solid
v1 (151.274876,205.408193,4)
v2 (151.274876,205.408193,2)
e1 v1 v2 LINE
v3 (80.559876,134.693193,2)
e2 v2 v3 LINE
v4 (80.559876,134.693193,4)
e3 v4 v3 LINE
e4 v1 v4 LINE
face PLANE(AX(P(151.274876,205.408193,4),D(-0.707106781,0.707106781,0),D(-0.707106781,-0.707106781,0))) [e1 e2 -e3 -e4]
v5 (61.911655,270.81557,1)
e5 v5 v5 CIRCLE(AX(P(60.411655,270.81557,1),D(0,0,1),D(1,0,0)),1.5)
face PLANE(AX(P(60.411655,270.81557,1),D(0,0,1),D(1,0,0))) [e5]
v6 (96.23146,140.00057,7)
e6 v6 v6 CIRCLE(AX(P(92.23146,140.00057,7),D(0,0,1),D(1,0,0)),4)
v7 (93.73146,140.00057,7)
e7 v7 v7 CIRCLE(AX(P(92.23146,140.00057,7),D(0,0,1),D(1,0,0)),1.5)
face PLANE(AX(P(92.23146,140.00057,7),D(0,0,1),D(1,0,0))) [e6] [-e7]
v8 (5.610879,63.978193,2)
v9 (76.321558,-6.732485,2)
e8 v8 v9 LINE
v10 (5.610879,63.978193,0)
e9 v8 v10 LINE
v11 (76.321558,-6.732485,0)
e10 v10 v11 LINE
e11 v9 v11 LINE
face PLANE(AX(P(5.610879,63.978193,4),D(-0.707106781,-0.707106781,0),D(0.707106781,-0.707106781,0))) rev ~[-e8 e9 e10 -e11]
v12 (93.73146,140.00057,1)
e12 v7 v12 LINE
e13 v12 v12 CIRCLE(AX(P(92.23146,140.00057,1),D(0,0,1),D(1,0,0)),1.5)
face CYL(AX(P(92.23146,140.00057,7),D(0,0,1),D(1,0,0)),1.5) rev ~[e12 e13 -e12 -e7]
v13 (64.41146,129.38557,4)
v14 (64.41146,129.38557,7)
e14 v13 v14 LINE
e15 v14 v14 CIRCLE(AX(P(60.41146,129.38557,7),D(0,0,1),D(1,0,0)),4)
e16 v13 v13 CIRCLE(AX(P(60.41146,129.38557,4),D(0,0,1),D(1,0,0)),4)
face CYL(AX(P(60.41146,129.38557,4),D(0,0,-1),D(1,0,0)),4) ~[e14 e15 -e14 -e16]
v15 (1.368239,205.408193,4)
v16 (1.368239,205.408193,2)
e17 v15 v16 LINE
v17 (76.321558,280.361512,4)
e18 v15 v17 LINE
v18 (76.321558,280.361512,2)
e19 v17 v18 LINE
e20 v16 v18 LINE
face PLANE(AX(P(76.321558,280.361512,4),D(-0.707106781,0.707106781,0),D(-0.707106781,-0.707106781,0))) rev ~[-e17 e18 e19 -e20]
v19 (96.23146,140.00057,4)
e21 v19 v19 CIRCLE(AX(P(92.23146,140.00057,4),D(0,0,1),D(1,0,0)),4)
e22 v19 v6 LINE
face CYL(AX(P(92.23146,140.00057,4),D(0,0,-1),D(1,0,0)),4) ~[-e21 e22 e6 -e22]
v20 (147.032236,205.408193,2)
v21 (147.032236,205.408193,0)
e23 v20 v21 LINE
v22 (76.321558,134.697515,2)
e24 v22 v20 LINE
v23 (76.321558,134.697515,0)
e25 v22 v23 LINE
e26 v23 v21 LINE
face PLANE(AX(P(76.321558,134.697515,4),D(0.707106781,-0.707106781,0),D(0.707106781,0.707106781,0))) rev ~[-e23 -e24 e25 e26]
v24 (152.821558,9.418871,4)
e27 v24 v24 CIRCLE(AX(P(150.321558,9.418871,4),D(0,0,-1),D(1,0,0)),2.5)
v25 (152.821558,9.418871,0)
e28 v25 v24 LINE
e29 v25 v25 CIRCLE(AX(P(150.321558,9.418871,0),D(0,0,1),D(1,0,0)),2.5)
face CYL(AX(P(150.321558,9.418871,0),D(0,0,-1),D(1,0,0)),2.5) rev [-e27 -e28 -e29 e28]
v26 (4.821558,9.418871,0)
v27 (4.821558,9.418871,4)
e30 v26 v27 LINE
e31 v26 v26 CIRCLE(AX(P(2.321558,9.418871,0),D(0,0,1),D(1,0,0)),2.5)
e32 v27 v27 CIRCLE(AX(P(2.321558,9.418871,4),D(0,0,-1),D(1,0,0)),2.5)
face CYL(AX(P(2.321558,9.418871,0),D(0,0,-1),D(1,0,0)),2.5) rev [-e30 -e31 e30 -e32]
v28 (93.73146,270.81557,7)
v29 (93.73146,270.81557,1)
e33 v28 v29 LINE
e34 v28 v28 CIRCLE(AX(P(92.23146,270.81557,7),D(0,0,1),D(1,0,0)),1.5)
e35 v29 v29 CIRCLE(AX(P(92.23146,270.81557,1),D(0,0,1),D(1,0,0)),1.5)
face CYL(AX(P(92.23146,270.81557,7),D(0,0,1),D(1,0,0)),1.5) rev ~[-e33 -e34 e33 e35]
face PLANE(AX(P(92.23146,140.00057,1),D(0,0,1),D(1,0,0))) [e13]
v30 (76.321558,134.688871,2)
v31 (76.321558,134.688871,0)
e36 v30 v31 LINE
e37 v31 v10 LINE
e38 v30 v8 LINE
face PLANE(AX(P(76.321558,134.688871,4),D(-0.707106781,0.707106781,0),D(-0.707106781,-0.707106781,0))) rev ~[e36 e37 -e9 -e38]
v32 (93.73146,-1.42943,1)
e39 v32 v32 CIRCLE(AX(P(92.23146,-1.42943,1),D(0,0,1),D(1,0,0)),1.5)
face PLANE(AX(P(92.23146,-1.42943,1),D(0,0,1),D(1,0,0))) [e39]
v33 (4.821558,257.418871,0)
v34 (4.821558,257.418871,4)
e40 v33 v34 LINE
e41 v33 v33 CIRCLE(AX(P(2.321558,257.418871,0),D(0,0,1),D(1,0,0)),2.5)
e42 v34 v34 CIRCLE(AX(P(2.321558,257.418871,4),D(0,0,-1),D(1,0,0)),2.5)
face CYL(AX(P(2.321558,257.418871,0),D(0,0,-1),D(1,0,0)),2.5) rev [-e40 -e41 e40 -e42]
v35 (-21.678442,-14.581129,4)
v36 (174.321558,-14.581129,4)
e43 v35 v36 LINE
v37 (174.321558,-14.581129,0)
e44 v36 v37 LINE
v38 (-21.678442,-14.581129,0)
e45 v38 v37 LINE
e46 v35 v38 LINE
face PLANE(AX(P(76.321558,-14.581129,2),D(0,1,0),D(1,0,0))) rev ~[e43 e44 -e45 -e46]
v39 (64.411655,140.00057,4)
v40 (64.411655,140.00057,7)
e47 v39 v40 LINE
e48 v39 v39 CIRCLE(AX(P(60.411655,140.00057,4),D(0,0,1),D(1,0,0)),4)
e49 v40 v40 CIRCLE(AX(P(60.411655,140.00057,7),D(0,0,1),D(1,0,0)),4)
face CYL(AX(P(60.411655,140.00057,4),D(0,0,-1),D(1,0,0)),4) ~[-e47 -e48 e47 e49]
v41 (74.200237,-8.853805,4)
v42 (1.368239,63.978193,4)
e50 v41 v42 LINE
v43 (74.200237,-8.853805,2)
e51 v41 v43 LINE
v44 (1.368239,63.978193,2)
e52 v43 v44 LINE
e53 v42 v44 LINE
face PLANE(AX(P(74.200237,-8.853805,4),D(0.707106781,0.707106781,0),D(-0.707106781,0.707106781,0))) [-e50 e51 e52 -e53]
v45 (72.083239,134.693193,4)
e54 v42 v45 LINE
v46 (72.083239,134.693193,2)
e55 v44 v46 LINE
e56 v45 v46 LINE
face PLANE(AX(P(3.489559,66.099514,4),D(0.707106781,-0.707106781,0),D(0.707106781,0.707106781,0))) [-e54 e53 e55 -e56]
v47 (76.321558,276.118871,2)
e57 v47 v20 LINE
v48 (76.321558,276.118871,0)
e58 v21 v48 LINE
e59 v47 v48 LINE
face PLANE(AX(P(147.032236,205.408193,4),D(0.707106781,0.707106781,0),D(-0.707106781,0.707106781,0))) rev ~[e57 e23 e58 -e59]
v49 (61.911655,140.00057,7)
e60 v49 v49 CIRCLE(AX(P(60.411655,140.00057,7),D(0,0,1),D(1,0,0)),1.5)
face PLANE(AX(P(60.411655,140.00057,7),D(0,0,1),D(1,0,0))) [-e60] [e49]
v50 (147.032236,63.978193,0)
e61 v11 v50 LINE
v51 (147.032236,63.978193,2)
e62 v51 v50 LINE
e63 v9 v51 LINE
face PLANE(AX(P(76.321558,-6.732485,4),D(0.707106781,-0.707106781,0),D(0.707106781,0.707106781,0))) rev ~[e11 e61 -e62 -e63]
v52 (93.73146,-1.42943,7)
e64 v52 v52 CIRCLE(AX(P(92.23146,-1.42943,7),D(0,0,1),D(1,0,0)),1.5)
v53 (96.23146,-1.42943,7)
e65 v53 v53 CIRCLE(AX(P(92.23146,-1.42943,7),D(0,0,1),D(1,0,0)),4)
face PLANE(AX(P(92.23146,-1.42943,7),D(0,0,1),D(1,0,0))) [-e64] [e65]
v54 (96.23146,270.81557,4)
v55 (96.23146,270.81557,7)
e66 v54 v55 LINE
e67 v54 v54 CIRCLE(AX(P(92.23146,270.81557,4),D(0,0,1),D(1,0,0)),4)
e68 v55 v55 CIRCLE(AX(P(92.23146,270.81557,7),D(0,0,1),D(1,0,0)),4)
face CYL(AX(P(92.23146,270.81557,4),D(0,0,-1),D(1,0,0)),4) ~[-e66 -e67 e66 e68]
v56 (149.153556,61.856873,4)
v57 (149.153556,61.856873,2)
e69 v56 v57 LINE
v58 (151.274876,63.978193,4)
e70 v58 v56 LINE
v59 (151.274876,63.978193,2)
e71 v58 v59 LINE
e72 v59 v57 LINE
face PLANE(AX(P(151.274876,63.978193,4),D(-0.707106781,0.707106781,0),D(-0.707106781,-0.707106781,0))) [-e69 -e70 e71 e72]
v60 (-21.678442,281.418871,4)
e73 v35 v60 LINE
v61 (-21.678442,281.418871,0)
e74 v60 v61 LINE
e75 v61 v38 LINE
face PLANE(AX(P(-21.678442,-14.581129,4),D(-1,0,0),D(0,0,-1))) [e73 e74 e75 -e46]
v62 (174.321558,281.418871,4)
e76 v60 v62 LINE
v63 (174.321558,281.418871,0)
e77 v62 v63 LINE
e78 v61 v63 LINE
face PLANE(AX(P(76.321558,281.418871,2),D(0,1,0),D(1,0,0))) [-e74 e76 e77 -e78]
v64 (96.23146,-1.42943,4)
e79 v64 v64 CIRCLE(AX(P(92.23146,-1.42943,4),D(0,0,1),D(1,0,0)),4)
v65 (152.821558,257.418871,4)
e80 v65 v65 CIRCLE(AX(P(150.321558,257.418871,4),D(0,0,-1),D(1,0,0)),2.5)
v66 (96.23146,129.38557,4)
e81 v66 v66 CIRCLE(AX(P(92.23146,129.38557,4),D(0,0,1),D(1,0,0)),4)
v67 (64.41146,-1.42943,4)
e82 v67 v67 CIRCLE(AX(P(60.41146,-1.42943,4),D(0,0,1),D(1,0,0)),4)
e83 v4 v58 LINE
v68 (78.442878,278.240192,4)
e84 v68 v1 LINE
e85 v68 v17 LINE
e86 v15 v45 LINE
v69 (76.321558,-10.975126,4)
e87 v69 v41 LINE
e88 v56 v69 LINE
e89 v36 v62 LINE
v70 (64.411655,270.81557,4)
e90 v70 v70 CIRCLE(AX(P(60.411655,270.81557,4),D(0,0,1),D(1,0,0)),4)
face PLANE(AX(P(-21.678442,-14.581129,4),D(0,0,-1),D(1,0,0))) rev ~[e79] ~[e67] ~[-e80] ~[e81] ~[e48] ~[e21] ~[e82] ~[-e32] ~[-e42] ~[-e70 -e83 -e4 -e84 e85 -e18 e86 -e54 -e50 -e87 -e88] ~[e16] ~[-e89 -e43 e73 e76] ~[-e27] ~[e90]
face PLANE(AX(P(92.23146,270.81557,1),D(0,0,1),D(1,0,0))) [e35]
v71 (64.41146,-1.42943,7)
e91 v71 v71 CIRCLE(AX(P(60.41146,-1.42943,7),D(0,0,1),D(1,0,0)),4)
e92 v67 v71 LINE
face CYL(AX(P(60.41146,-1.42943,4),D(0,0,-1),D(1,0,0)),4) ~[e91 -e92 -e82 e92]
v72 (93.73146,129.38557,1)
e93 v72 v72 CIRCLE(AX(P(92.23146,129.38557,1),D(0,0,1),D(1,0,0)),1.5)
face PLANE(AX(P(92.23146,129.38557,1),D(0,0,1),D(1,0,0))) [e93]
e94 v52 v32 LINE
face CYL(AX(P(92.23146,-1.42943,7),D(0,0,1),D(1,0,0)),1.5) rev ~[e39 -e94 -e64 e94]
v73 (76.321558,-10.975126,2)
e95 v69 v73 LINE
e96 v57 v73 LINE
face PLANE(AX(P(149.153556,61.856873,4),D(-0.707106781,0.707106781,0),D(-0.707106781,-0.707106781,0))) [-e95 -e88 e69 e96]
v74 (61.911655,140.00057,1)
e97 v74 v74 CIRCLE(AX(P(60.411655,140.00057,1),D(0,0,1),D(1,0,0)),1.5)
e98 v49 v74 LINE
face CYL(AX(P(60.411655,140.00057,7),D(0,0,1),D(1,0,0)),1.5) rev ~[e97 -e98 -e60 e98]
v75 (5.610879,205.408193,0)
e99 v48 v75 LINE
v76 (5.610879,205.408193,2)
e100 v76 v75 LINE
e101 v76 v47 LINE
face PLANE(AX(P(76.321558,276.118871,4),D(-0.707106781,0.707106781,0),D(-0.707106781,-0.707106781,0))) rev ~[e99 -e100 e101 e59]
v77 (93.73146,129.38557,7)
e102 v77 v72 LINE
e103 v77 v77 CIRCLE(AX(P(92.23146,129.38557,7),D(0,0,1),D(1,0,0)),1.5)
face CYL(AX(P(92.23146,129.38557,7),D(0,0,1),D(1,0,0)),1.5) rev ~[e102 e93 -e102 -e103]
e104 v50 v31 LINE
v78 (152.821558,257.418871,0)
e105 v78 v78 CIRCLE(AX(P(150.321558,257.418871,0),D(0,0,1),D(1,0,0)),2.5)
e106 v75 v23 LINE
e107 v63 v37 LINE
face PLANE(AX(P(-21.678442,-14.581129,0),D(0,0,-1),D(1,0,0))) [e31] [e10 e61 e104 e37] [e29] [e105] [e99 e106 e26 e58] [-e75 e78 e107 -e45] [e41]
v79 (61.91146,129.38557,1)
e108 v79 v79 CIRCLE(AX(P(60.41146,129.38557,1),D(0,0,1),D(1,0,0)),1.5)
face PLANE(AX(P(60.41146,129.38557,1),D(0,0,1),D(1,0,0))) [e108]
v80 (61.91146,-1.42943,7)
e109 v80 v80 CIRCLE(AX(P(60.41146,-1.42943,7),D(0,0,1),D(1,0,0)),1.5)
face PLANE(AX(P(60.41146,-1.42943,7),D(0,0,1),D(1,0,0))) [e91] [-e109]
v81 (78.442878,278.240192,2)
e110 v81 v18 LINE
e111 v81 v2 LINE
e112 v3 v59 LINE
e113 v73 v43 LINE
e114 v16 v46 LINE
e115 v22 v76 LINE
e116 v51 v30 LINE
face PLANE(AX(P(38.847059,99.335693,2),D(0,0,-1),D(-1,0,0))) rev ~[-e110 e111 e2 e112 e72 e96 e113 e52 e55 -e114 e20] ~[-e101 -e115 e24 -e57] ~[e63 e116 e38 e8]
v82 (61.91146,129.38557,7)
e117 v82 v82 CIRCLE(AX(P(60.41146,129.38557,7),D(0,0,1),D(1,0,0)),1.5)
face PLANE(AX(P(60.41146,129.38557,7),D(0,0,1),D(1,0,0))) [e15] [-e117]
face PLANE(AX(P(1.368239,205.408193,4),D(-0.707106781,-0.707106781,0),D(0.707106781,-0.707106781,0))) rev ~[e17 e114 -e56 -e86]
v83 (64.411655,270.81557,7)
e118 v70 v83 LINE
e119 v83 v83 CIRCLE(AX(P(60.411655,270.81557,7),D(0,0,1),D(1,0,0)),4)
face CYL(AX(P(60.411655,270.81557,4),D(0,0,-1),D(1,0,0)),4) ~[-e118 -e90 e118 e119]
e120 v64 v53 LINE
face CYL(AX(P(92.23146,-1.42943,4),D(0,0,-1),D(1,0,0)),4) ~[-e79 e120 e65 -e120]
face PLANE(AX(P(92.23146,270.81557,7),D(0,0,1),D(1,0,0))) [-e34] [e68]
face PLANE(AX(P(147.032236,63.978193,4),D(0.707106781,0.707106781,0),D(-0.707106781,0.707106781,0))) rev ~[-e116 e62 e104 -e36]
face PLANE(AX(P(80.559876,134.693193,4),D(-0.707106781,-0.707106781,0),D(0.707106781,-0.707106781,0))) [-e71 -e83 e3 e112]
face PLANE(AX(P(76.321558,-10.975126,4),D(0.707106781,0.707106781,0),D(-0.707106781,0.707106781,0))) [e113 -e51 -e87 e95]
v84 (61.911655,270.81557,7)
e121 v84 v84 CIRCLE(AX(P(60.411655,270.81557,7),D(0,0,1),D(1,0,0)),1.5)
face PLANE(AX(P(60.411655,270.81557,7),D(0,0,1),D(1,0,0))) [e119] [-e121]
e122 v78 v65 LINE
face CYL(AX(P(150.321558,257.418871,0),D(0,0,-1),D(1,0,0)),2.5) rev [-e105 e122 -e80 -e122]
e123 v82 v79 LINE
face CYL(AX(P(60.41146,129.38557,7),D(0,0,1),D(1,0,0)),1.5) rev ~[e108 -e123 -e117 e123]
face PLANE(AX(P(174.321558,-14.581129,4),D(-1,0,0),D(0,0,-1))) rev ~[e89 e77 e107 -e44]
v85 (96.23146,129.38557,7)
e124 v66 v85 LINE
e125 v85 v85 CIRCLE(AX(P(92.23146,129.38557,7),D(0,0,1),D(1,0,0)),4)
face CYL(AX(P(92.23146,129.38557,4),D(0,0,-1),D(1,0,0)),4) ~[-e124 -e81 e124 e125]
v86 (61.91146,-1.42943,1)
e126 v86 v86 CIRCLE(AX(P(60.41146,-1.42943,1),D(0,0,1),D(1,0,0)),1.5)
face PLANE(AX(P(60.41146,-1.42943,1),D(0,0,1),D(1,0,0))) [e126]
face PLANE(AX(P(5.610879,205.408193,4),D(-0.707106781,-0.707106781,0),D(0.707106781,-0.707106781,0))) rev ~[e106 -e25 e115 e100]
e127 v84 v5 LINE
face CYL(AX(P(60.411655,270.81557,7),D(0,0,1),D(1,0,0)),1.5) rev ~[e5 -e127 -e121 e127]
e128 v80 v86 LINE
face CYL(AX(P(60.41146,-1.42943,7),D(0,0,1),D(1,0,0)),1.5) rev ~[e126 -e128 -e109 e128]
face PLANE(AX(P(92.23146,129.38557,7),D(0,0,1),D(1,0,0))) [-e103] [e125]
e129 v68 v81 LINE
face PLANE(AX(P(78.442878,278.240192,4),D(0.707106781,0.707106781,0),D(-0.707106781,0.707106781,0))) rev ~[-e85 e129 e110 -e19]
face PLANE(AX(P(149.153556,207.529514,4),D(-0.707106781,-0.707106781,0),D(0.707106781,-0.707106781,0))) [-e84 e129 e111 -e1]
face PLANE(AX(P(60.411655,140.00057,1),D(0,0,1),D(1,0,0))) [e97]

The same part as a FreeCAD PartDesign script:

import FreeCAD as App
import Part
import Sketcher

V = App.Vector
Q = App.Units.Quantity

doc = App.newDocument("Part")
body = doc.addObject("PartDesign::Body", "Body")

# Sketch on XY plane
sketch1 = body.newObject("Sketcher::SketchObject", "Sketch")
sketch1.AttachmentSupport = (doc.getObject("XY_Plane"), [""])
sketch1.MapMode = "FlatFace"
sketch1.addGeometry(Part.LineSegment(V(-20.678442, 280.418871, 0), V(-20.678442, -13.581129, 0)), False)
sketch1.addGeometry(Part.LineSegment(V(-20.678442, -13.581129, 0), V(173.321558, -13.581129, 0)), False)
sketch1.addGeometry(Part.LineSegment(V(173.321558, -13.581129, 0), V(173.321558, 280.418871, 0)), False)
sketch1.addGeometry(Part.LineSegment(V(173.321558, 280.418871, 0), V(-20.678442, 280.418871, 0)), False)
sketch1.addConstraint(Sketcher.Constraint("Coincident", 0, 2, 1, 1))
sketch1.addConstraint(Sketcher.Constraint("Coincident", 1, 2, 2, 1))
sketch1.addConstraint(Sketcher.Constraint("Coincident", 2, 2, 3, 1))
sketch1.addConstraint(Sketcher.Constraint("Coincident", 3, 2, 0, 1))
sketch1.addConstraint(Sketcher.Constraint("Vertical", 0))
sketch1.addConstraint(Sketcher.Constraint("Horizontal", 1))
sketch1.addConstraint(Sketcher.Constraint("Vertical", 2))
sketch1.addConstraint(Sketcher.Constraint("Horizontal", 3))
sketch1.addConstraint(Sketcher.Constraint("DistanceX", 1, 1, 1, 2, Q("194 mm")))
sketch1.addConstraint(Sketcher.Constraint("DistanceY", 0, 2, 0, 1, Q("294 mm")))
sketch1.addConstraint(Sketcher.Constraint("DistanceY", 0, 2, -1, 1, Q("13.581129 mm")))
sketch1.addConstraint(Sketcher.Constraint("DistanceX", 0, 2, -1, 1, Q("20.678442 mm")))
pad1 = body.newObject("PartDesign::Pad", "Pad")
pad1.Profile = sketch1
pad1.Length = 4

# Sketch on XY plane
sketch2 = body.newObject("Sketcher::SketchObject", "Sketch001")
sketch2.AttachmentSupport = (doc.getObject("XY_Plane"), [""])
sketch2.MapMode = "FlatFace"
sketch2.addGeometry(Part.Circle(V(2.321558, 257.418871, 0), V(0, 0, 1), 2.5), False)
sketch2.addGeometry(Part.Circle(V(150.321558, 257.418871, 0), V(0, 0, 1), 2.5), False)
sketch2.addGeometry(Part.Circle(V(150.321558, 9.418871, 0), V(0, 0, 1), 2.5), False)
sketch2.addGeometry(Part.Circle(V(2.321558, 9.418871, 0), V(0, 0, 1), 2.5), False)
sketch2.addConstraint(Sketcher.Constraint("Equal", 0, 1))
sketch2.addConstraint(Sketcher.Constraint("Equal", 1, 2))
sketch2.addConstraint(Sketcher.Constraint("Equal", 2, 3))
sketch2.addConstraint(Sketcher.Constraint("Horizontal", 0, 3, 1, 3))
sketch2.addConstraint(Sketcher.Constraint("Horizontal", 2, 3, 3, 3))
sketch2.addConstraint(Sketcher.Constraint("Vertical", 1, 3, 2, 3))
sketch2.addConstraint(Sketcher.Constraint("Vertical", 0, 3, 3, 3))
sketch2.addConstraint(Sketcher.Constraint("Diameter", 0, Q("5 mm")))
sketch2.addConstraint(Sketcher.Constraint("DistanceX", 0, 3, 1, 3, Q("148 mm")))
sketch2.addConstraint(Sketcher.Constraint("DistanceY", 2, 3, 1, 3, Q("248 mm")))
sketch2.addConstraint(Sketcher.Constraint("DistanceY", -1, 1, 0, 3, Q("257.418871 mm")))
sketch2.addConstraint(Sketcher.Constraint("DistanceX", -1, 1, 0, 3, Q("2.321558 mm")))
pocket1 = body.newObject("PartDesign::Pocket", "Pocket")
pocket1.Profile = sketch2
pocket1.Type = "ThroughAll"
pocket1.Reversed = True

# Sketch on XY plane
sketch3 = body.newObject("Sketcher::SketchObject", "Sketch002")
sketch3.AttachmentSupport = (doc.getObject("XY_Plane"), [""])
sketch3.MapMode = "FlatFace"
sketch3.AttachmentOffset = App.Placement(V(0, 0, 4), App.Rotation())
sketch3.addGeometry(Part.LineSegment(V(76.321558, 276.118871, 0), V(5.610879, 205.408193, 0)), False)
sketch3.addGeometry(Part.LineSegment(V(5.610879, 205.408193, 0), V(76.321558, 134.697515, 0)), False)
sketch3.addGeometry(Part.LineSegment(V(76.321558, 134.697515, 0), V(147.032236, 205.408193, 0)), False)
sketch3.addGeometry(Part.LineSegment(V(147.032236, 205.408193, 0), V(76.321558, 276.118871, 0)), False)
sketch3.addConstraint(Sketcher.Constraint("Coincident", 0, 2, 1, 1))
sketch3.addConstraint(Sketcher.Constraint("Coincident", 1, 2, 2, 1))
sketch3.addConstraint(Sketcher.Constraint("Coincident", 2, 2, 3, 1))
sketch3.addConstraint(Sketcher.Constraint("Coincident", 3, 2, 0, 1))
sketch3.addConstraint(Sketcher.Constraint("Perpendicular", 0, 1))
sketch3.addConstraint(Sketcher.Constraint("Perpendicular", 1, 2))
sketch3.addConstraint(Sketcher.Constraint("Perpendicular", 2, 3))
sketch3.addConstraint(Sketcher.Constraint("Horizontal", 0, 2, 2, 2))
sketch3.addConstraint(Sketcher.Constraint("Vertical", 1, 2, 3, 2))
sketch3.addConstraint(Sketcher.Constraint("Distance", 0, Q("100 mm")))
sketch3.addConstraint(Sketcher.Constraint("DistanceX", -1, 1, 0, 2, Q("5.610879 mm")))
sketch3.addConstraint(Sketcher.Constraint("DistanceY", -1, 1, 3, 2, Q("276.118871 mm")))
pocket2 = body.newObject("PartDesign::Pocket", "Pocket001")
pocket2.Profile = sketch3
pocket2.Type = "ThroughAll"
doc.recompute()

linearpattern = body.newObject("PartDesign::LinearPattern", "LinearPattern")
linearpattern.Originals = [pocket2]
linearpattern.Direction = (doc.getObject("Y_Axis"), [""])
linearpattern.Mode = "offset"
linearpattern.Offset = 141.43
linearpattern.Occurrences = 2
linearpattern.Reversed = True
body.Tip = linearpattern

# Sketch on XY plane
sketch4 = body.newObject("Sketcher::SketchObject", "Sketch003")
sketch4.AttachmentSupport = (doc.getObject("XY_Plane"), [""])
sketch4.MapMode = "FlatFace"
sketch4.AttachmentOffset = App.Placement(V(0, 0, 4), App.Rotation())
sketch4.addGeometry(Part.Circle(V(60.411655, 270.81557, 0), V(0, 0, 1), 4), False)
sketch4.addGeometry(Part.Circle(V(92.23146, 270.81557, 0), V(0, 0, 1), 4), False)
sketch4.addConstraint(Sketcher.Constraint("Equal", 0, 1))
sketch4.addConstraint(Sketcher.Constraint("Horizontal", 0, 3, 1, 3))
sketch4.addConstraint(Sketcher.Constraint("Diameter", 0, Q("8 mm")))
sketch4.addConstraint(Sketcher.Constraint("DistanceY", -1, 1, 0, 3, Q("270.81557 mm")))
sketch4.addConstraint(Sketcher.Constraint("DistanceX", -1, 1, 1, 3, Q("92.23146 mm")))
sketch4.addConstraint(Sketcher.Constraint("DistanceX", -1, 1, 0, 3, Q("60.411655 mm")))
pad2 = body.newObject("PartDesign::Pad", "Pad001")
pad2.Profile = sketch4
pad2.Length = 3

# Sketch on XY plane
sketch5 = body.newObject("Sketcher::SketchObject", "Sketch004")
sketch5.AttachmentSupport = (doc.getObject("XY_Plane"), [""])
sketch5.MapMode = "FlatFace"
sketch5.AttachmentOffset = App.Placement(V(0, 0, 7), App.Rotation())
sketch5.addGeometry(Part.Circle(V(60.411655, 270.81557, 0), V(0, 0, 1), 1.5), False)
sketch5.addConstraint(Sketcher.Constraint("Diameter", 0, Q("3 mm")))
sketch5.addConstraint(Sketcher.Constraint("DistanceY", -1, 1, 0, 3, Q("270.81557 mm")))
sketch5.addConstraint(Sketcher.Constraint("DistanceX", -1, 1, 0, 3, Q("60.411655 mm")))
pocket3 = body.newObject("PartDesign::Pocket", "Pocket002")
pocket3.Profile = sketch5
pocket3.Length = 6

# Sketch on XY plane
sketch6 = body.newObject("Sketcher::SketchObject", "Sketch005")
sketch6.AttachmentSupport = (doc.getObject("XY_Plane"), [""])
sketch6.MapMode = "FlatFace"
sketch6.AttachmentOffset = App.Placement(V(0, 0, 7), App.Rotation())
sketch6.addGeometry(Part.Circle(V(92.23146, 270.81557, 0), V(0, 0, 1), 1.5), False)
sketch6.addConstraint(Sketcher.Constraint("Diameter", 0, Q("3 mm")))
sketch6.addConstraint(Sketcher.Constraint("DistanceX", -1, 1, 0, 3, Q("92.23146 mm")))
sketch6.addConstraint(Sketcher.Constraint("DistanceY", -1, 1, 0, 3, Q("270.81557 mm")))
pocket4 = body.newObject("PartDesign::Pocket", "Pocket003")
pocket4.Profile = sketch6
pocket4.Length = 6
doc.recompute()

linearpattern2 = body.newObject("PartDesign::LinearPattern", "LinearPattern001")
linearpattern2.Originals = [pad2, pocket3]
linearpattern2.Direction = (doc.getObject("Y_Axis"), [""])
linearpattern2.Mode = "offset"
linearpattern2.Offset = 130.815
linearpattern2.Occurrences = 2
linearpattern2.Reversed = True
body.Tip = linearpattern2

# Sketch on XY plane
sketch7 = body.newObject("Sketcher::SketchObject", "Sketch006")
sketch7.AttachmentSupport = (doc.getObject("XY_Plane"), [""])
sketch7.MapMode = "FlatFace"
sketch7.AttachmentOffset = App.Placement(V(0, 0, 7), App.Rotation())
sketch7.addGeometry(Part.Circle(V(92.23146, 140.00057, 0), V(0, 0, 1), 1.5), False)
sketch7.addConstraint(Sketcher.Constraint("Diameter", 0, Q("3 mm")))
sketch7.addConstraint(Sketcher.Constraint("DistanceX", -1, 1, 0, 3, Q("92.23146 mm")))
sketch7.addConstraint(Sketcher.Constraint("DistanceY", -1, 1, 0, 3, Q("140.00057 mm")))
pocket5 = body.newObject("PartDesign::Pocket", "Pocket004")
pocket5.Profile = sketch7
pocket5.Length = 6

# Sketch on XY plane
sketch8 = body.newObject("Sketcher::SketchObject", "Sketch007")
sketch8.AttachmentSupport = (doc.getObject("XY_Plane"), [""])
sketch8.MapMode = "FlatFace"
sketch8.AttachmentOffset = App.Placement(V(0, 0, 4), App.Rotation())
sketch8.addGeometry(Part.Circle(V(92.23146, 129.38557, 0), V(0, 0, 1), 4), False)
sketch8.addConstraint(Sketcher.Constraint("Diameter", 0, Q("8 mm")))
sketch8.addConstraint(Sketcher.Constraint("DistanceX", -1, 1, 0, 3, Q("92.23146 mm")))
sketch8.addConstraint(Sketcher.Constraint("DistanceY", -1, 1, 0, 3, Q("129.38557 mm")))
pad3 = body.newObject("PartDesign::Pad", "Pad002")
pad3.Profile = sketch8
pad3.Length = 3

# Sketch on XY plane
sketch9 = body.newObject("Sketcher::SketchObject", "Sketch008")
sketch9.AttachmentSupport = (doc.getObject("XY_Plane"), [""])
sketch9.MapMode = "FlatFace"
sketch9.AttachmentOffset = App.Placement(V(0, 0, 7), App.Rotation())
sketch9.addGeometry(Part.Circle(V(92.23146, 129.38557, 0), V(0, 0, 1), 1.5), False)
sketch9.addConstraint(Sketcher.Constraint("Diameter", 0, Q("3 mm")))
sketch9.addConstraint(Sketcher.Constraint("DistanceX", -1, 1, 0, 3, Q("92.23146 mm")))
sketch9.addConstraint(Sketcher.Constraint("DistanceY", -1, 1, 0, 3, Q("129.38557 mm")))
pocket6 = body.newObject("PartDesign::Pocket", "Pocket005")
pocket6.Profile = sketch9
pocket6.Length = 6
doc.recompute()

linearpattern3 = body.newObject("PartDesign::LinearPattern", "LinearPattern002")
linearpattern3.Originals = [pad3, pocket6]
linearpattern3.Direction = (doc.getObject("X_Axis"), [""])
linearpattern3.Mode = "offset"
linearpattern3.Offset = 31.82
linearpattern3.Occurrences = 2
linearpattern3.Reversed = True
body.Tip = linearpattern3
doc.recompute()

linearpattern4 = body.newObject("PartDesign::LinearPattern", "LinearPattern003")
linearpattern4.Originals = [pad3, pocket6]
linearpattern4.Direction = (doc.getObject("Y_Axis"), [""])
linearpattern4.Mode = "offset"
linearpattern4.Offset = 130.815
linearpattern4.Occurrences = 2
linearpattern4.Reversed = True
body.Tip = linearpattern4

# Sketch on XY plane
sketch10 = body.newObject("Sketcher::SketchObject", "Sketch009")
sketch10.AttachmentSupport = (doc.getObject("XY_Plane"), [""])
sketch10.MapMode = "FlatFace"
sketch10.AttachmentOffset = App.Placement(V(0, 0, 4), App.Rotation())
sketch10.addGeometry(Part.Circle(V(60.41146, -1.42943, 0), V(0, 0, 1), 4), False)
sketch10.addConstraint(Sketcher.Constraint("Diameter", 0, Q("8 mm")))
sketch10.addConstraint(Sketcher.Constraint("DistanceX", -1, 1, 0, 3, Q("60.41146 mm")))
sketch10.addConstraint(Sketcher.Constraint("DistanceY", 0, 3, -1, 1, Q("1.42943 mm")))
pad4 = body.newObject("PartDesign::Pad", "Pad003")
pad4.Profile = sketch10
pad4.Length = 3

# Sketch on XY plane
sketch11 = body.newObject("Sketcher::SketchObject", "Sketch010")
sketch11.AttachmentSupport = (doc.getObject("XY_Plane"), [""])
sketch11.MapMode = "FlatFace"
sketch11.AttachmentOffset = App.Placement(V(0, 0, 7), App.Rotation())
sketch11.addGeometry(Part.Circle(V(60.41146, -1.42943, 0), V(0, 0, 1), 1.5), False)
sketch11.addConstraint(Sketcher.Constraint("Diameter", 0, Q("3 mm")))
sketch11.addConstraint(Sketcher.Constraint("DistanceX", -1, 1, 0, 3, Q("60.41146 mm")))
sketch11.addConstraint(Sketcher.Constraint("DistanceY", 0, 3, -1, 1, Q("1.42943 mm")))
pocket7 = body.newObject("PartDesign::Pocket", "Pocket006")
pocket7.Profile = sketch11
pocket7.Length = 6

# Sketch on XY plane
sketch12 = body.newObject("Sketcher::SketchObject", "Sketch011")
sketch12.AttachmentSupport = (doc.getObject("XY_Plane"), [""])
sketch12.MapMode = "FlatFace"
sketch12.AttachmentOffset = App.Placement(V(0, 0, 4), App.Rotation())
sketch12.addGeometry(Part.LineSegment(V(76.321558, 276.118871, 0), V(147.032236, 205.408193, 0)), False)
sketch12.addGeometry(Part.LineSegment(V(147.032236, 205.408193, 0), V(149.153556, 207.529514, 0)), False)
sketch12.addGeometry(Part.LineSegment(V(149.153556, 207.529514, 0), V(78.442878, 278.240192, 0)), False)
sketch12.addGeometry(Part.LineSegment(V(78.442878, 278.240192, 0), V(76.321558, 276.118871, 0)), False)
sketch12.addConstraint(Sketcher.Constraint("Coincident", 0, 2, 1, 1))
sketch12.addConstraint(Sketcher.Constraint("Coincident", 1, 2, 2, 1))
sketch12.addConstraint(Sketcher.Constraint("Coincident", 2, 2, 3, 1))
sketch12.addConstraint(Sketcher.Constraint("Coincident", 3, 2, 0, 1))
sketch12.addConstraint(Sketcher.Constraint("Perpendicular", 0, 1))
sketch12.addConstraint(Sketcher.Constraint("Perpendicular", 1, 2))
sketch12.addConstraint(Sketcher.Constraint("Perpendicular", 2, 3))
sketch12.addConstraint(Sketcher.Constraint("Angle", 0, Q("-45 deg")))
sketch12.addConstraint(Sketcher.Constraint("Distance", 0, Q("100 mm")))
sketch12.addConstraint(Sketcher.Constraint("Distance", 1, Q("3 mm")))
sketch12.addConstraint(Sketcher.Constraint("DistanceY", -1, 1, 2, 2, Q("278.240192 mm")))
sketch12.addConstraint(Sketcher.Constraint("DistanceX", -1, 1, 0, 2, Q("147.032236 mm")))
pocket8 = body.newObject("PartDesign::Pocket", "Pocket007")
pocket8.Profile = sketch12
pocket8.Length = 2

# Sketch on XY plane
sketch13 = body.newObject("Sketcher::SketchObject", "Sketch012")
sketch13.AttachmentSupport = (doc.getObject("XY_Plane"), [""])
sketch13.MapMode = "FlatFace"
sketch13.AttachmentOffset = App.Placement(V(0, 0, 4), App.Rotation())
sketch13.addGeometry(Part.LineSegment(V(5.610879, 205.408193, 0), V(78.442878, 278.240192, 0)), False)
sketch13.addGeometry(Part.LineSegment(V(78.442878, 278.240192, 0), V(76.321558, 280.361512, 0)), False)
sketch13.addGeometry(Part.LineSegment(V(76.321558, 280.361512, 0), V(3.489559, 207.529514, 0)), False)
sketch13.addGeometry(Part.LineSegment(V(3.489559, 207.529514, 0), V(5.610879, 205.408193, 0)), False)
sketch13.addConstraint(Sketcher.Constraint("Coincident", 0, 2, 1, 1))
sketch13.addConstraint(Sketcher.Constraint("Coincident", 1, 2, 2, 1))
sketch13.addConstraint(Sketcher.Constraint("Coincident", 2, 2, 3, 1))
sketch13.addConstraint(Sketcher.Constraint("Coincident", 3, 2, 0, 1))
sketch13.addConstraint(Sketcher.Constraint("Perpendicular", 0, 1))
sketch13.addConstraint(Sketcher.Constraint("Perpendicular", 1, 2))
sketch13.addConstraint(Sketcher.Constraint("Perpendicular", 2, 3))
sketch13.addConstraint(Sketcher.Constraint("Angle", 0, Q("45 deg")))
sketch13.addConstraint(Sketcher.Constraint("Distance", 0, Q("103 mm")))
sketch13.addConstraint(Sketcher.Constraint("Distance", 1, Q("3 mm")))
sketch13.addConstraint(Sketcher.Constraint("DistanceY", -1, 1, 0, 2, Q("278.240192 mm")))
sketch13.addConstraint(Sketcher.Constraint("DistanceX", -1, 1, 2, 2, Q("3.489559 mm")))
pocket9 = body.newObject("PartDesign::Pocket", "Pocket008")
pocket9.Profile = sketch13
pocket9.Length = 2

# Sketch on XY plane
sketch14 = body.newObject("Sketcher::SketchObject", "Sketch013")
sketch14.AttachmentSupport = (doc.getObject("XY_Plane"), [""])
sketch14.MapMode = "FlatFace"
sketch14.AttachmentOffset = App.Placement(V(0, 0, 4), App.Rotation())
sketch14.addGeometry(Part.LineSegment(V(76.325879, 134.693193, 0), V(3.489559, 207.529514, 0)), False)
sketch14.addGeometry(Part.LineSegment(V(3.489559, 207.529514, 0), V(1.368239, 205.408193, 0)), False)
sketch14.addGeometry(Part.LineSegment(V(1.368239, 205.408193, 0), V(74.204559, 132.571873, 0)), False)
sketch14.addGeometry(Part.LineSegment(V(74.204559, 132.571873, 0), V(76.325879, 134.693193, 0)), False)
sketch14.addConstraint(Sketcher.Constraint("Coincident", 0, 2, 1, 1))
sketch14.addConstraint(Sketcher.Constraint("Coincident", 1, 2, 2, 1))
sketch14.addConstraint(Sketcher.Constraint("Coincident", 2, 2, 3, 1))
sketch14.addConstraint(Sketcher.Constraint("Coincident", 3, 2, 0, 1))
sketch14.addConstraint(Sketcher.Constraint("Perpendicular", 0, 1))
sketch14.addConstraint(Sketcher.Constraint("Perpendicular", 1, 2))
sketch14.addConstraint(Sketcher.Constraint("Perpendicular", 2, 3))
sketch14.addConstraint(Sketcher.Constraint("Angle", 0, Q("135 deg")))
sketch14.addConstraint(Sketcher.Constraint("Distance", 1, Q("3 mm")))
sketch14.addConstraint(Sketcher.Constraint("DistanceX", 0, 2, 2, 2, Q("70.715 mm")))
sketch14.addConstraint(Sketcher.Constraint("DistanceX", -1, 1, 0, 2, Q("3.489559 mm")))
sketch14.addConstraint(Sketcher.Constraint("DistanceY", -1, 1, 0, 2, Q("207.529514 mm")))
pocket10 = body.newObject("PartDesign::Pocket", "Pocket009")
pocket10.Profile = sketch14
pocket10.Length = 2

# Sketch on XY plane
sketch15 = body.newObject("Sketcher::SketchObject", "Sketch014")
sketch15.AttachmentSupport = (doc.getObject("XY_Plane"), [""])
sketch15.MapMode = "FlatFace"
sketch15.AttachmentOffset = App.Placement(V(0, 0, 4), App.Rotation())
sketch15.addGeometry(Part.LineSegment(V(149.153556, 207.529514, 0), V(76.317236, 134.693193, 0)), False)
sketch15.addGeometry(Part.LineSegment(V(76.317236, 134.693193, 0), V(78.438556, 132.571873, 0)), False)
sketch15.addGeometry(Part.LineSegment(V(78.438556, 132.571873, 0), V(151.274876, 205.408193, 0)), False)
sketch15.addGeometry(Part.LineSegment(V(151.274876, 205.408193, 0), V(149.153556, 207.529514, 0)), False)
sketch15.addConstraint(Sketcher.Constraint("Coincident", 0, 2, 1, 1))
sketch15.addConstraint(Sketcher.Constraint("Coincident", 1, 2, 2, 1))
sketch15.addConstraint(Sketcher.Constraint("Coincident", 2, 2, 3, 1))
sketch15.addConstraint(Sketcher.Constraint("Coincident", 3, 2, 0, 1))
sketch15.addConstraint(Sketcher.Constraint("Perpendicular", 0, 1))
sketch15.addConstraint(Sketcher.Constraint("Perpendicular", 1, 2))
sketch15.addConstraint(Sketcher.Constraint("Perpendicular", 2, 3))
sketch15.addConstraint(Sketcher.Constraint("Angle", 0, Q("-135 deg")))
sketch15.addConstraint(Sketcher.Constraint("Distance", 1, Q("3 mm")))
sketch15.addConstraint(Sketcher.Constraint("DistanceY", 0, 2, 2, 2, Q("70.715 mm")))
sketch15.addConstraint(Sketcher.Constraint("DistanceX", -1, 1, 0, 2, Q("76.317236 mm")))
sketch15.addConstraint(Sketcher.Constraint("DistanceY", -1, 1, 0, 2, Q("134.693193 mm")))
pocket11 = body.newObject("PartDesign::Pocket", "Pocket010")
pocket11.Profile = sketch15
pocket11.Length = 2

# Sketch on XY plane
sketch16 = body.newObject("Sketcher::SketchObject", "Sketch015")
sketch16.AttachmentSupport = (doc.getObject("XY_Plane"), [""])
sketch16.MapMode = "FlatFace"
sketch16.AttachmentOffset = App.Placement(V(0, 0, 4), App.Rotation())
sketch16.addGeometry(Part.LineSegment(V(5.610879, 63.978193, 0), V(74.204559, 132.571873, 0)), False)
sketch16.addGeometry(Part.LineSegment(V(74.204559, 132.571873, 0), V(72.083239, 134.693193, 0)), False)
sketch16.addGeometry(Part.LineSegment(V(72.083239, 134.693193, 0), V(3.489559, 66.099514, 0)), False)
sketch16.addGeometry(Part.LineSegment(V(3.489559, 66.099514, 0), V(5.610879, 63.978193, 0)), False)
sketch16.addConstraint(Sketcher.Constraint("Coincident", 0, 2, 1, 1))
sketch16.addConstraint(Sketcher.Constraint("Coincident", 1, 2, 2, 1))
sketch16.addConstraint(Sketcher.Constraint("Coincident", 2, 2, 3, 1))
sketch16.addConstraint(Sketcher.Constraint("Coincident", 3, 2, 0, 1))
sketch16.addConstraint(Sketcher.Constraint("Perpendicular", 0, 1))
sketch16.addConstraint(Sketcher.Constraint("Perpendicular", 1, 2))
sketch16.addConstraint(Sketcher.Constraint("Perpendicular", 2, 3))
sketch16.addConstraint(Sketcher.Constraint("Angle", 0, Q("45 deg")))
sketch16.addConstraint(Sketcher.Constraint("Distance", 1, Q("3 mm")))
sketch16.addConstraint(Sketcher.Constraint("DistanceX", 2, 2, 0, 2, Q("70.715 mm")))
sketch16.addConstraint(Sketcher.Constraint("DistanceX", -1, 1, 0, 2, Q("74.204559 mm")))
sketch16.addConstraint(Sketcher.Constraint("DistanceY", -1, 1, 0, 2, Q("132.571873 mm")))
pocket12 = body.newObject("PartDesign::Pocket", "Pocket011")
pocket12.Profile = sketch16
pocket12.Length = 2

# Sketch on XY plane
sketch17 = body.newObject("Sketcher::SketchObject", "Sketch016")
sketch17.AttachmentSupport = (doc.getObject("XY_Plane"), [""])
sketch17.MapMode = "FlatFace"
sketch17.AttachmentOffset = App.Placement(V(0, 0, 4), App.Rotation())
sketch17.addGeometry(Part.LineSegment(V(76.321558, -6.732485, 0), V(3.489559, 66.099514, 0)), False)
sketch17.addGeometry(Part.LineSegment(V(3.489559, 66.099514, 0), V(1.368239, 63.978193, 0)), False)
sketch17.addGeometry(Part.LineSegment(V(1.368239, 63.978193, 0), V(74.200237, -8.853805, 0)), False)
sketch17.addGeometry(Part.LineSegment(V(74.200237, -8.853805, 0), V(76.321558, -6.732485, 0)), False)
sketch17.addConstraint(Sketcher.Constraint("Coincident", 0, 2, 1, 1))
sketch17.addConstraint(Sketcher.Constraint("Coincident", 1, 2, 2, 1))
sketch17.addConstraint(Sketcher.Constraint("Coincident", 2, 2, 3, 1))
sketch17.addConstraint(Sketcher.Constraint("Coincident", 3, 2, 0, 1))
sketch17.addConstraint(Sketcher.Constraint("Perpendicular", 0, 1))
sketch17.addConstraint(Sketcher.Constraint("Perpendicular", 1, 2))
sketch17.addConstraint(Sketcher.Constraint("Perpendicular", 2, 3))
sketch17.addConstraint(Sketcher.Constraint("Angle", 0, Q("135 deg")))
sketch17.addConstraint(Sketcher.Constraint("Distance", 0, Q("103 mm")))
sketch17.addConstraint(Sketcher.Constraint("Distance", 1, Q("3 mm")))
sketch17.addConstraint(Sketcher.Constraint("DistanceX", -1, 1, 0, 2, Q("3.489559 mm")))
sketch17.addConstraint(Sketcher.Constraint("DistanceY", -1, 1, 0, 2, Q("66.099514 mm")))
pocket13 = body.newObject("PartDesign::Pocket", "Pocket012")
pocket13.Profile = sketch17
pocket13.Length = 2

# Sketch on XY plane
sketch18 = body.newObject("Sketcher::SketchObject", "Sketch017")
sketch18.AttachmentSupport = (doc.getObject("XY_Plane"), [""])
sketch18.MapMode = "FlatFace"
sketch18.AttachmentOffset = App.Placement(V(0, 0, 4), App.Rotation())
sketch18.addGeometry(Part.LineSegment(V(147.032236, 63.978193, 0), V(74.200237, -8.853805, 0)), False)
sketch18.addGeometry(Part.LineSegment(V(74.200237, -8.853805, 0), V(76.321558, -10.975126, 0)), False)
sketch18.addGeometry(Part.LineSegment(V(76.321558, -10.975126, 0), V(149.153556, 61.856873, 0)), False)
sketch18.addGeometry(Part.LineSegment(V(149.153556, 61.856873, 0), V(147.032236, 63.978193, 0)), False)
sketch18.addConstraint(Sketcher.Constraint("Coincident", 0, 2, 1, 1))
sketch18.addConstraint(Sketcher.Constraint("Coincident", 1, 2, 2, 1))
sketch18.addConstraint(Sketcher.Constraint("Coincident", 2, 2, 3, 1))
sketch18.addConstraint(Sketcher.Constraint("Coincident", 3, 2, 0, 1))
sketch18.addConstraint(Sketcher.Constraint("Perpendicular", 0, 1))
sketch18.addConstraint(Sketcher.Constraint("Perpendicular", 1, 2))
sketch18.addConstraint(Sketcher.Constraint("Perpendicular", 2, 3))
sketch18.addConstraint(Sketcher.Constraint("Angle", 0, Q("-135 deg")))
sketch18.addConstraint(Sketcher.Constraint("Distance", 0, Q("103 mm")))
sketch18.addConstraint(Sketcher.Constraint("Distance", 1, Q("3 mm")))
sketch18.addConstraint(Sketcher.Constraint("DistanceX", -1, 1, 0, 2, Q("74.200237 mm")))
sketch18.addConstraint(Sketcher.Constraint("DistanceY", 0, 2, -1, 1, Q("8.853805 mm")))
pocket14 = body.newObject("PartDesign::Pocket", "Pocket013")
pocket14.Profile = sketch18
pocket14.Length = 2

# Sketch on XY plane
sketch19 = body.newObject("Sketcher::SketchObject", "Sketch018")
sketch19.AttachmentSupport = (doc.getObject("XY_Plane"), [""])
sketch19.MapMode = "FlatFace"
sketch19.AttachmentOffset = App.Placement(V(0, 0, 4), App.Rotation())
sketch19.addGeometry(Part.LineSegment(V(78.438556, 132.571873, 0), V(149.153556, 61.856873, 0)), False)
sketch19.addGeometry(Part.LineSegment(V(149.153556, 61.856873, 0), V(151.274876, 63.978193, 0)), False)
sketch19.addGeometry(Part.LineSegment(V(151.274876, 63.978193, 0), V(80.559876, 134.693193, 0)), False)
sketch19.addGeometry(Part.LineSegment(V(80.559876, 134.693193, 0), V(78.438556, 132.571873, 0)), False)
sketch19.addConstraint(Sketcher.Constraint("Coincident", 0, 2, 1, 1))
sketch19.addConstraint(Sketcher.Constraint("Coincident", 1, 2, 2, 1))
sketch19.addConstraint(Sketcher.Constraint("Coincident", 2, 2, 3, 1))
sketch19.addConstraint(Sketcher.Constraint("Coincident", 3, 2, 0, 1))
sketch19.addConstraint(Sketcher.Constraint("Perpendicular", 0, 1))
sketch19.addConstraint(Sketcher.Constraint("Perpendicular", 1, 2))
sketch19.addConstraint(Sketcher.Constraint("Perpendicular", 2, 3))
sketch19.addConstraint(Sketcher.Constraint("Angle", 0, Q("-45 deg")))
sketch19.addConstraint(Sketcher.Constraint("Distance", 1, Q("3 mm")))
sketch19.addConstraint(Sketcher.Constraint("DistanceX", 2, 2, 1, 2, Q("70.715 mm")))
sketch19.addConstraint(Sketcher.Constraint("DistanceX", -1, 1, 0, 2, Q("149.153556 mm")))
sketch19.addConstraint(Sketcher.Constraint("DistanceY", -1, 1, 0, 2, Q("61.856873 mm")))
pocket15 = body.newObject("PartDesign::Pocket", "Pocket014")
pocket15.Profile = sketch19
pocket15.Length = 2

# Sketch on YZ plane
sketch20 = body.newObject("Sketcher::SketchObject", "Sketch019")
sketch20.AttachmentSupport = (doc.getObject("YZ_Plane"), [""])
sketch20.MapMode = "FlatFace"
sketch20.AttachmentOffset = App.Placement(V(0, 0, 173.321558), App.Rotation())
sketch20.addGeometry(Part.LineSegment(V(280.418871, 4, 0), V(-13.581129, 4, 0)), False)
sketch20.addGeometry(Part.LineSegment(V(-13.581129, 4, 0), V(-13.581129, 0, 0)), False)
sketch20.addGeometry(Part.LineSegment(V(-13.581129, 0, 0), V(280.418871, 0, 0)), False)
sketch20.addGeometry(Part.LineSegment(V(280.418871, 0, 0), V(280.418871, 4, 0)), False)
sketch20.addConstraint(Sketcher.Constraint("Coincident", 0, 2, 1, 1))
sketch20.addConstraint(Sketcher.Constraint("Coincident", 1, 2, 2, 1))
sketch20.addConstraint(Sketcher.Constraint("Coincident", 2, 2, 3, 1))
sketch20.addConstraint(Sketcher.Constraint("Coincident", 3, 2, 0, 1))
sketch20.addConstraint(Sketcher.Constraint("Horizontal", 0))
sketch20.addConstraint(Sketcher.Constraint("Vertical", 1))
sketch20.addConstraint(Sketcher.Constraint("Horizontal", 2))
sketch20.addConstraint(Sketcher.Constraint("Vertical", 3))
sketch20.addConstraint(Sketcher.Constraint("PointOnObject", 1, 2, -1))
sketch20.addConstraint(Sketcher.Constraint("DistanceX", 0, 2, 0, 1, Q("294 mm")))
sketch20.addConstraint(Sketcher.Constraint("DistanceY", 1, 2, 1, 1, Q("4 mm")))
sketch20.addConstraint(Sketcher.Constraint("DistanceX", 0, 2, -1, 1, Q("13.581129 mm")))
pad5 = body.newObject("PartDesign::Pad", "Pad004")
pad5.Profile = sketch20
pad5.Length = 1
doc.recompute()

linearpattern5 = body.newObject("PartDesign::LinearPattern", "LinearPattern004")
linearpattern5.Originals = [pad5]
linearpattern5.Direction = (doc.getObject("X_Axis"), [""])
linearpattern5.Mode = "offset"
linearpattern5.Offset = 195
linearpattern5.Occurrences = 2
linearpattern5.Reversed = True
body.Tip = linearpattern5

# Sketch on XZ plane
sketch21 = body.newObject("Sketcher::SketchObject", "Sketch020")
sketch21.AttachmentSupport = (doc.getObject("XZ_Plane"), [""])
sketch21.MapMode = "FlatFace"
sketch21.AttachmentOffset = App.Placement(V(0, 0, -280.418871), App.Rotation())
sketch21.addGeometry(Part.LineSegment(V(-21.678442, 0, 0), V(-21.678442, 4, 0)), False)
sketch21.addGeometry(Part.LineSegment(V(-21.678442, 4, 0), V(174.321558, 4, 0)), False)
sketch21.addGeometry(Part.LineSegment(V(174.321558, 4, 0), V(174.321558, 0, 0)), False)
sketch21.addGeometry(Part.LineSegment(V(174.321558, 0, 0), V(-21.678442, 0, 0)), False)
sketch21.addConstraint(Sketcher.Constraint("Coincident", 0, 2, 1, 1))
sketch21.addConstraint(Sketcher.Constraint("Coincident", 1, 2, 2, 1))
sketch21.addConstraint(Sketcher.Constraint("Coincident", 2, 2, 3, 1))
sketch21.addConstraint(Sketcher.Constraint("Coincident", 3, 2, 0, 1))
sketch21.addConstraint(Sketcher.Constraint("Vertical", 0))
sketch21.addConstraint(Sketcher.Constraint("Horizontal", 1))
sketch21.addConstraint(Sketcher.Constraint("Vertical", 2))
sketch21.addConstraint(Sketcher.Constraint("Horizontal", 3))
sketch21.addConstraint(Sketcher.Constraint("PointOnObject", 2, 2, -1))
sketch21.addConstraint(Sketcher.Constraint("DistanceX", 1, 1, 1, 2, Q("196 mm")))
sketch21.addConstraint(Sketcher.Constraint("DistanceY", 0, 1, 0, 2, Q("4 mm")))
sketch21.addConstraint(Sketcher.Constraint("DistanceX", 0, 2, -1, 1, Q("21.678442 mm")))
pad6 = body.newObject("PartDesign::Pad", "Pad005")
pad6.Profile = sketch21
pad6.Length = 1
pad6.Reversed = True
doc.recompute()

linearpattern6 = body.newObject("PartDesign::LinearPattern", "LinearPattern005")
linearpattern6.Originals = [pad6]
linearpattern6.Direction = (doc.getObject("Y_Axis"), [""])
linearpattern6.Mode = "offset"
linearpattern6.Offset = 295
linearpattern6.Occurrences = 2
linearpattern6.Reversed = True
body.Tip = linearpattern6

doc.recompute()
